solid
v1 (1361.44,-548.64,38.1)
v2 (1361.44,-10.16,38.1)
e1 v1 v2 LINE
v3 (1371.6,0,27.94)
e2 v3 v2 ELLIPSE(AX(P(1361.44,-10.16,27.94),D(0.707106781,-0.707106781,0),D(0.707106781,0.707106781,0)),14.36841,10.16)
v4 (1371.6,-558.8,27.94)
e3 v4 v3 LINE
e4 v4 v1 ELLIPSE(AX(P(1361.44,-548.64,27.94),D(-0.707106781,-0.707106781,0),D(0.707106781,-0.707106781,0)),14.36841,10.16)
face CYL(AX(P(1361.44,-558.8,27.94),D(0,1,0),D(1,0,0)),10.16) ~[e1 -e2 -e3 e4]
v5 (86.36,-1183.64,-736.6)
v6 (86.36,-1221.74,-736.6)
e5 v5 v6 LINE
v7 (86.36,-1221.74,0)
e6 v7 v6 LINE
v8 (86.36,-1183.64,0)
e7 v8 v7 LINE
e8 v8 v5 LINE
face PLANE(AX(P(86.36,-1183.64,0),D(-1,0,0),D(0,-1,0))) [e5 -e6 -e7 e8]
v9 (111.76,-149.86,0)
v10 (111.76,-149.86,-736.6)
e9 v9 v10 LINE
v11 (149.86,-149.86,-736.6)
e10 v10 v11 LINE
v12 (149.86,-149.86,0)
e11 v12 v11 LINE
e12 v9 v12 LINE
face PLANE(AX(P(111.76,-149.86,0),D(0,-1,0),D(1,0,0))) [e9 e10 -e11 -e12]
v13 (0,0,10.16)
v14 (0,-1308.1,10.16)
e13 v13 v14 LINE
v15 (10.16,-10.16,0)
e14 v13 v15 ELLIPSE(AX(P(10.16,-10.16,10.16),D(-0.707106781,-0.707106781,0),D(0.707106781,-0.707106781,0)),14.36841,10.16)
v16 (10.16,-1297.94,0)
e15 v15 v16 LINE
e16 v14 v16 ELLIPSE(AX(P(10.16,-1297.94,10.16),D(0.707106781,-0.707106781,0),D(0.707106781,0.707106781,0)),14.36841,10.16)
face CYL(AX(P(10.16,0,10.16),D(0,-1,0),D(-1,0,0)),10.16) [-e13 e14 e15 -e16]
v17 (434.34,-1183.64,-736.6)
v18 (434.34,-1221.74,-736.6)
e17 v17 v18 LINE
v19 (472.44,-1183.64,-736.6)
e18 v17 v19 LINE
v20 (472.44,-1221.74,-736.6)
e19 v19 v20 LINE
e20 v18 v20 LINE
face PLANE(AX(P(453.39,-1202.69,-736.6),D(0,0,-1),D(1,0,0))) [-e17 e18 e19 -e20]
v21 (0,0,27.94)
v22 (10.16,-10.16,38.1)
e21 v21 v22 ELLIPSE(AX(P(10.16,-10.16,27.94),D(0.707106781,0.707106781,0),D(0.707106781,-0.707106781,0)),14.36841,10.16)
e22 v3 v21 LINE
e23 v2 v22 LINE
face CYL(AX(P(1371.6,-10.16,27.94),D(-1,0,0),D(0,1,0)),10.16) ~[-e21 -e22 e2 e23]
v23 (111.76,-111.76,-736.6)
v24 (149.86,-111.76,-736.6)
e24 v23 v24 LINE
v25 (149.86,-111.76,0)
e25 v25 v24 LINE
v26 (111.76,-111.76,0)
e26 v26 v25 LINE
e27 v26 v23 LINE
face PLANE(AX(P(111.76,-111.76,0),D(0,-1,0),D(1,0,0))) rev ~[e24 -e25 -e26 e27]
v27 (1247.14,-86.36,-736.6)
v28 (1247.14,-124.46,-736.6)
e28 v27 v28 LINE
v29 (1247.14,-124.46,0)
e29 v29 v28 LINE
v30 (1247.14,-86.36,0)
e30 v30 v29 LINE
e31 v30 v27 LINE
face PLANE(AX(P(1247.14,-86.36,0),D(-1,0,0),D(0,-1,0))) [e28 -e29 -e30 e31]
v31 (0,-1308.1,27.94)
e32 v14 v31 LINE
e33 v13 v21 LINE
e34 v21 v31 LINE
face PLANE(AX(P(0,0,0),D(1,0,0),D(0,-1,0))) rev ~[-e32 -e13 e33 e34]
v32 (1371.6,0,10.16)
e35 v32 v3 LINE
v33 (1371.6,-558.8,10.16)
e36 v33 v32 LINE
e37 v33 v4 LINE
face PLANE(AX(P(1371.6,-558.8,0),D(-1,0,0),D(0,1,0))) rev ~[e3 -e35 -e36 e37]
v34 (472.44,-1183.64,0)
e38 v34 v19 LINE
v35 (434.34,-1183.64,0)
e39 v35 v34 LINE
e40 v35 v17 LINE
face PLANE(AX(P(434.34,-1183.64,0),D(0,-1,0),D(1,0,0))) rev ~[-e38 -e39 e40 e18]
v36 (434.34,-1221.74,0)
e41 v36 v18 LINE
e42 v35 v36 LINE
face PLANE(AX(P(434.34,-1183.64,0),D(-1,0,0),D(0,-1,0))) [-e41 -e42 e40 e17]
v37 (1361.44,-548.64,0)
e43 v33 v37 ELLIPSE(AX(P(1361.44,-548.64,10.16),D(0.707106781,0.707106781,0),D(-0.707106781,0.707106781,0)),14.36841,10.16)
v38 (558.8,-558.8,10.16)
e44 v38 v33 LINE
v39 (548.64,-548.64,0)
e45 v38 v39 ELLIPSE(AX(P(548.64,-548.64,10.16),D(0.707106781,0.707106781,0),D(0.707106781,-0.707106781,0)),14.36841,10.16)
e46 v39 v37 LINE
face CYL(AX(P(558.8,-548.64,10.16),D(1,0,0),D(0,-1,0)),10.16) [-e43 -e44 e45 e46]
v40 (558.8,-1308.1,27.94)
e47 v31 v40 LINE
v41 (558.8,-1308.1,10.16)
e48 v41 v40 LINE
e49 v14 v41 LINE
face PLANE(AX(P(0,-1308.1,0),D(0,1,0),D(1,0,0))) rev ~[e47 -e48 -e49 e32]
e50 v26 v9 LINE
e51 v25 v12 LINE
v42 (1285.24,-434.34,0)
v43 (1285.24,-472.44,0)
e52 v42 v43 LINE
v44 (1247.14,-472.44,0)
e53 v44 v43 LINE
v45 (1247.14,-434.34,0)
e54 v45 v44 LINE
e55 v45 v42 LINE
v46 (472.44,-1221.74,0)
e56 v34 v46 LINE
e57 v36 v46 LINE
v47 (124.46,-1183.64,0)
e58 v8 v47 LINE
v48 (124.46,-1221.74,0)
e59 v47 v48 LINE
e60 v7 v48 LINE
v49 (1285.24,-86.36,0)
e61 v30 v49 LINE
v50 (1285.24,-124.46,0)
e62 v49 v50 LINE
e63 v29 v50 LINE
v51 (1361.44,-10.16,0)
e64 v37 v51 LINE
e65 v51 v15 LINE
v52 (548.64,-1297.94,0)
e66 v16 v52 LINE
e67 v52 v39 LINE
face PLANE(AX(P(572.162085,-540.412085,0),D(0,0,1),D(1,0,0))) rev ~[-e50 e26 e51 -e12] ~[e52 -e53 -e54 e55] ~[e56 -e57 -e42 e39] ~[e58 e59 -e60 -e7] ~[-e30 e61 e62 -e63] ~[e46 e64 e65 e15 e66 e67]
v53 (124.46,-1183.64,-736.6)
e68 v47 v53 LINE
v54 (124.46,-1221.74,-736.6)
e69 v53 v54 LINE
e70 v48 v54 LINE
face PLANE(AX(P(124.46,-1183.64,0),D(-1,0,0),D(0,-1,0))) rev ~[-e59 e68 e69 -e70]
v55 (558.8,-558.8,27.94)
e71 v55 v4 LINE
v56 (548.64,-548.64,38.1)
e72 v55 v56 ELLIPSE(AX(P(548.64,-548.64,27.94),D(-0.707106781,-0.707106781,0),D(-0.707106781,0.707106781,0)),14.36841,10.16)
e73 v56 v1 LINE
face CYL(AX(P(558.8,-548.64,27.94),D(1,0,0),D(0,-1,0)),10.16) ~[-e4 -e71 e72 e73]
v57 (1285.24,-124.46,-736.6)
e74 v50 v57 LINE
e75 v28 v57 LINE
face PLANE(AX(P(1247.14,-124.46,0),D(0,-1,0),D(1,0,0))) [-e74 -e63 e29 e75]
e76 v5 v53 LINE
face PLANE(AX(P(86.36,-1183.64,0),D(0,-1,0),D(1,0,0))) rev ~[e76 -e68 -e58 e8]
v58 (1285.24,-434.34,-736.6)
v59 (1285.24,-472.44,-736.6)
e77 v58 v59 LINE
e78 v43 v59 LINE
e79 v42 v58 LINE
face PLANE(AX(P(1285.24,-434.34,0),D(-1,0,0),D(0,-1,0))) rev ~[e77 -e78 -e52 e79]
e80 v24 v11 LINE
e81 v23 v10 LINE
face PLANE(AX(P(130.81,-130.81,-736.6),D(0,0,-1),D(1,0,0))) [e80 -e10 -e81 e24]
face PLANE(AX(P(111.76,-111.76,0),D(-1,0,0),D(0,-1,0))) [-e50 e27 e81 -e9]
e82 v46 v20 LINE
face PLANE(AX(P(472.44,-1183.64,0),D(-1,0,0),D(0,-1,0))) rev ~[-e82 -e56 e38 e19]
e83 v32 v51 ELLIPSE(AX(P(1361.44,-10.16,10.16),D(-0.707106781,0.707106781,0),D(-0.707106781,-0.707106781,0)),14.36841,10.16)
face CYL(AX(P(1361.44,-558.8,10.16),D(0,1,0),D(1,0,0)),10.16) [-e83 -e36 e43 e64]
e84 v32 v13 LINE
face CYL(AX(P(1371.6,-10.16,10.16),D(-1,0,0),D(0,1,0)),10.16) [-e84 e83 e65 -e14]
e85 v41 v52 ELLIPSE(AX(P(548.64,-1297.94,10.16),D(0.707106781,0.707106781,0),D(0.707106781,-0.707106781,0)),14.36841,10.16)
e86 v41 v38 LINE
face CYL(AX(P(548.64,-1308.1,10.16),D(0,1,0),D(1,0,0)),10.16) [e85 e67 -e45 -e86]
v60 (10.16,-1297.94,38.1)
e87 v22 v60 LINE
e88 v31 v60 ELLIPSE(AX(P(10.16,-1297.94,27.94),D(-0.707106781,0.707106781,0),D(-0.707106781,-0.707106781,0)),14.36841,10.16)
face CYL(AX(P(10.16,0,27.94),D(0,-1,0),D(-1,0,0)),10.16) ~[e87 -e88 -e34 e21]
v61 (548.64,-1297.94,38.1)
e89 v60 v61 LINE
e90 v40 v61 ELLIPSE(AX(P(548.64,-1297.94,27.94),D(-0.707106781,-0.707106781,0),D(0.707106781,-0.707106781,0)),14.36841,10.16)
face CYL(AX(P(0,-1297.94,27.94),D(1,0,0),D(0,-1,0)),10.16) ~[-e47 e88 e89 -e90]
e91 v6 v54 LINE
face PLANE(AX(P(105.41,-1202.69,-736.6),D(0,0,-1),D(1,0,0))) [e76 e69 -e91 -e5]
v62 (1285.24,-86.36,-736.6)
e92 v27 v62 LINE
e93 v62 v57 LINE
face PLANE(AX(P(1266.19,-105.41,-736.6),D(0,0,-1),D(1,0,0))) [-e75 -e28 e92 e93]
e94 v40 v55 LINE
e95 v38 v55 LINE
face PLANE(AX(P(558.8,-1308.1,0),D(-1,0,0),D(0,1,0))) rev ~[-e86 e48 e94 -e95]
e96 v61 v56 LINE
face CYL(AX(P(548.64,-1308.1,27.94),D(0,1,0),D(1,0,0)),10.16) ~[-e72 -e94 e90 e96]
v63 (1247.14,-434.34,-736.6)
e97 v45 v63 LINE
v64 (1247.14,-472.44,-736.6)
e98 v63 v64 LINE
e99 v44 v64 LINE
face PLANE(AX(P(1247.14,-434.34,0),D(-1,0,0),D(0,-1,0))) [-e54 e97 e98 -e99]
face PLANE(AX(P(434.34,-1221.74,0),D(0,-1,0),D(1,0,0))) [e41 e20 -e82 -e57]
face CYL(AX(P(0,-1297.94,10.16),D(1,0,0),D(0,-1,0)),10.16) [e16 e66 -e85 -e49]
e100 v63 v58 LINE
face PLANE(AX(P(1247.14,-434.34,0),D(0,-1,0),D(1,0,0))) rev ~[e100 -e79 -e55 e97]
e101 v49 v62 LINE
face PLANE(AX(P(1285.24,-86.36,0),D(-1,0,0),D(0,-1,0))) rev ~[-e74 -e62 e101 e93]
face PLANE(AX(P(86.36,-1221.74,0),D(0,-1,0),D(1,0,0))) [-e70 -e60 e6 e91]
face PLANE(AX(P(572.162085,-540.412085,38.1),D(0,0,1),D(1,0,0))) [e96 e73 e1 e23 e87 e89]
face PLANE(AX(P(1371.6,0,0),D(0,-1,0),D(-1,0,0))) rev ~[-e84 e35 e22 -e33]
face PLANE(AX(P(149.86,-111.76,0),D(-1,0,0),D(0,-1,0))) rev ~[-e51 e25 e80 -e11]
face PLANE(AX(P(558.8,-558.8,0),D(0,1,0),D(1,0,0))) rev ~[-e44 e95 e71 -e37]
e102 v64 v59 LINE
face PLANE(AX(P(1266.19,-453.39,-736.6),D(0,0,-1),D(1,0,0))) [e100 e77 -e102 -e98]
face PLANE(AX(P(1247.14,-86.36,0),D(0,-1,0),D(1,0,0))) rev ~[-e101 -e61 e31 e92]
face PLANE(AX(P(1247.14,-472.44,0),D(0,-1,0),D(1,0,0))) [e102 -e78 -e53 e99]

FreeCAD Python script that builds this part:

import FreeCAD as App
import Part
import Sketcher
from FreeCAD import Vector
Q = App.Units.Quantity


def edges_at(feature, points):
    """Names of the edges that pass closest to the given points."""
    edges = feature.Shape.Edges
    near = lambda p: min(range(len(edges)), key=lambda i: edges[i].distToShape(Part.Vertex(*p))[0])
    return sorted({f"Edge{near(p) + 1}" for p in points})


def add_polygon(sketch, points):
    """Adds a closed chain of lines whose ends are joined by coincident constraints."""
    first, n = sketch.GeometryCount, len(points)
    for a, b in zip(points, points[1:] + points[:1]):
        sketch.addGeometry(Part.LineSegment(App.Vector(*a, 0), App.Vector(*b, 0)), False)
    for i in range(n):
        sketch.addConstraint(Sketcher.Constraint("Coincident", first + i, 2, first + (i + 1) % n, 1))

doc = App.newDocument("Part")
body = doc.addObject("PartDesign::Body", "Body")

# Sketch on XY plane
sketch1 = body.newObject("Sketcher::SketchObject", "Sketch")
sketch1.AttachmentSupport = (doc.getObject("XY_Plane"), [""])
sketch1.MapMode = "FlatFace"
add_polygon(sketch1, [(1372, 0), (0, 0), (0, -1308), (559, -1308), (559, -559), (1372, -559)])  # lines 0-5
sketch1.addConstraint([
    Sketcher.Constraint("Horizontal", 0),
    Sketcher.Constraint("Vertical", 1),
    Sketcher.Constraint("Horizontal", 2),
    Sketcher.Constraint("Vertical", 3),
    Sketcher.Constraint("Horizontal", 4),
    Sketcher.Constraint("Vertical", 5),
    Sketcher.Constraint("Coincident", 0, 2, -1, 1),
    Sketcher.Constraint("Equal", 2, 5),
    Sketcher.Constraint("DistanceX", 0, 2, 0, 1, Q("54 in")),
    Sketcher.Constraint("DistanceX", 2, 1, 2, 2, Q("22 in")),
    Sketcher.Constraint("DistanceY", 1, 2, 1, 1, Q("51.5 in")),
])
pad1 = body.newObject("PartDesign::Pad", "Pad")
pad1.Profile = sketch1
pad1.Length = Q("1.5 in")
doc.recompute()

fillet = body.newObject("PartDesign::Fillet", "Fillet")
fillet.Base = (pad1, edges_at(pad1, [
    (0, -654.05, 38.1),
    (279.4, -1308.1, 38.1),
    (558.8, -933.45, 38.1),
    (965.2, -558.8, 38.1),
    (1371.6, -279.4, 38.1),
    (685.8, 0, 38.1),
    (279.4, -1308.1, 0),
    (0, -654.05, 0),
    (685.8, 0, 0),
    (1371.6, -279.4, 0),
    (965.2, -558.8, 0),
    (558.8, -933.45, 0),
]))
fillet.Radius = Q("0.4 in")

# Sketch on XY plane
sketch2 = body.newObject("Sketcher::SketchObject", "Sketch001")
sketch2.AttachmentSupport = (doc.getObject("XY_Plane"), [""])
sketch2.MapMode = "FlatFace"
add_polygon(sketch2, [(112, -150), (112, -112), (150, -112), (150, -150)])  # lines 0-3
add_polygon(sketch2, [(1247, -124), (1247, -86), (1285, -86), (1285, -124)])  # lines 4-7
add_polygon(sketch2, [(1247, -472), (1247, -434), (1285, -434), (1285, -472)])  # lines 8-11
add_polygon(sketch2, [(86, -1222), (86, -1184), (124, -1184), (124, -1222)])  # lines 12-15
add_polygon(sketch2, [(434, -1222), (434, -1184), (472, -1184), (472, -1222)])  # lines 16-19
sketch2.addConstraint([
    Sketcher.Constraint("Vertical", 0),
    Sketcher.Constraint("Horizontal", 1),
    Sketcher.Constraint("Vertical", 2),
    Sketcher.Constraint("Horizontal", 3),
    Sketcher.Constraint("Vertical", 4),
    Sketcher.Constraint("Horizontal", 5),
    Sketcher.Constraint("Vertical", 6),
    Sketcher.Constraint("Horizontal", 7),
    Sketcher.Constraint("Vertical", 8),
    Sketcher.Constraint("Horizontal", 9),
    Sketcher.Constraint("Vertical", 10),
    Sketcher.Constraint("Horizontal", 11),
    Sketcher.Constraint("Vertical", 12),
    Sketcher.Constraint("Horizontal", 13),
    Sketcher.Constraint("Vertical", 14),
    Sketcher.Constraint("Horizontal", 15),
    Sketcher.Constraint("Vertical", 16),
    Sketcher.Constraint("Horizontal", 17),
    Sketcher.Constraint("Vertical", 18),
    Sketcher.Constraint("Horizontal", 19),
    Sketcher.Constraint("Horizontal", 13, 2, 16, 2),
    Sketcher.Constraint("Horizontal", 15, 2, 18, 2),
    Sketcher.Constraint("Vertical", 7, 2, 8, 2),
    Sketcher.Constraint("Vertical", 6, 2, 9, 2),
    Sketcher.Constraint("Equal", 3, 5),
    Sketcher.Constraint("Equal", 11, 13),
    Sketcher.Constraint("Equal", 15, 17),
    Sketcher.Constraint("Equal", 19, 0),
    Sketcher.Constraint("Equal", 2, 4),
    Sketcher.Constraint("Equal", 6, 8),
    Sketcher.Constraint("Equal", 10, 12),
    Sketcher.Constraint("DistanceX", 1, 1, 1, 2, Q("1.5 in")),
    Sketcher.Constraint("DistanceY", 1, 2, 4, 2, Q("1 in")),
    Sketcher.Constraint("DistanceX", 12, 2, 3, 2, Q("1 in")),
    Sketcher.Constraint("DistanceY", 12, 2, 11, 2, Q("28 in")),
    Sketcher.Constraint("DistanceX", -1, 1, 0, 2, Q("4.4 in")),
    Sketcher.Constraint("DistanceY", 0, 2, -1, 1, Q("4.4 in")),
    Sketcher.Constraint("DistanceX", -1, 1, 4, 2, Q("49.1 in")),
    Sketcher.Constraint("DistanceY", 8, 2, -1, 1, Q("17.1 in")),
    Sketcher.Constraint("DistanceX", -1, 1, 16, 2, Q("17.1 in")),
])
pad2 = body.newObject("PartDesign::Pad", "Pad001")
pad2.Profile = sketch2
pad2.Length = Q("29 in")
pad2.Reversed = True

doc.recompute()
